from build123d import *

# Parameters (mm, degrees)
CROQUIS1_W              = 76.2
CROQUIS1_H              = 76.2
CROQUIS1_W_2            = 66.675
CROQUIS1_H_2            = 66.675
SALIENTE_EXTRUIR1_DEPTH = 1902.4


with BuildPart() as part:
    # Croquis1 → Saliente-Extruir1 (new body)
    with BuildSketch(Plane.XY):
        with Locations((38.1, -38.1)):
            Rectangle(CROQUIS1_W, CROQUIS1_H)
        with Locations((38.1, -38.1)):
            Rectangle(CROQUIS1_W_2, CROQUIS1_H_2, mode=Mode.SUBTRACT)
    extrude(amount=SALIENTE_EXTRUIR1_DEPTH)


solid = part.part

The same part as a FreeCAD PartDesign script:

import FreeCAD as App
import Part
import Sketcher
from FreeCAD import Vector
Q = App.Units.Quantity

doc = App.newDocument("Part")
body = doc.addObject("PartDesign::Body", "Body")

# Sketch on XY plane
sketch1 = body.newObject("Sketcher::SketchObject", "Sketch")
sketch1.AttachmentSupport = (doc.getObject("XY_Plane"), [""])
sketch1.MapMode = "FlatFace"
sketch1.addGeometry([
    Part.LineSegment(Vector(0, 0, 0), Vector(0, -76, 0)),  # 0
    Part.LineSegment(Vector(0, -76, 0), Vector(76, -76, 0)),  # 1
    Part.LineSegment(Vector(76, -76, 0), Vector(76, 0, 0)),  # 2
    Part.LineSegment(Vector(76, 0, 0), Vector(0, 0, 0)),  # 3
    Part.LineSegment(Vector(71, -71, 0), Vector(5, -71, 0)),  # 4
    Part.LineSegment(Vector(5, -71, 0), Vector(5, -5, 0)),  # 5
    Part.LineSegment(Vector(5, -5, 0), Vector(71, -5, 0)),  # 6
    Part.LineSegment(Vector(71, -5, 0), Vector(71, -71, 0)),  # 7
], False)
sketch1.addConstraint([
    Sketcher.Constraint("Coincident", 0, 2, 1, 1),
    Sketcher.Constraint("Coincident", 1, 2, 2, 1),
    Sketcher.Constraint("Coincident", 2, 2, 3, 1),
    Sketcher.Constraint("Coincident", 3, 2, 0, 1),
    Sketcher.Constraint("Coincident", 4, 2, 5, 1),
    Sketcher.Constraint("Coincident", 5, 2, 6, 1),
    Sketcher.Constraint("Coincident", 6, 2, 7, 1),
    Sketcher.Constraint("Coincident", 7, 2, 4, 1),
    Sketcher.Constraint("Vertical", 0),
    Sketcher.Constraint("Horizontal", 1),
    Sketcher.Constraint("Vertical", 2),
    Sketcher.Constraint("Horizontal", 3),
    Sketcher.Constraint("Horizontal", 4),
    Sketcher.Constraint("Vertical", 5),
    Sketcher.Constraint("Horizontal", 6),
    Sketcher.Constraint("Vertical", 7),
    Sketcher.Constraint("Coincident", 3, 2, -1, 1),
    Sketcher.Constraint("Equal", 3, 0),
    Sketcher.Constraint("Equal", 6, 5),
    Sketcher.Constraint("DistanceX", 1, 1, 1, 2, Q("3 in")),
    Sketcher.Constraint("DistanceX", 4, 2, 4, 1, Q("2.625 in")),
    Sketcher.Constraint("DistanceX", -1, 1, 4, 2, Q("0.1875 in")),
    Sketcher.Constraint("DistanceY", 4, 2, -1, 1, Q("2.8125 in")),
])
pad1 = body.newObject("PartDesign::Pad", "Pad")
pad1.Profile = sketch1
pad1.Length = 1902.4

doc.recompute()
